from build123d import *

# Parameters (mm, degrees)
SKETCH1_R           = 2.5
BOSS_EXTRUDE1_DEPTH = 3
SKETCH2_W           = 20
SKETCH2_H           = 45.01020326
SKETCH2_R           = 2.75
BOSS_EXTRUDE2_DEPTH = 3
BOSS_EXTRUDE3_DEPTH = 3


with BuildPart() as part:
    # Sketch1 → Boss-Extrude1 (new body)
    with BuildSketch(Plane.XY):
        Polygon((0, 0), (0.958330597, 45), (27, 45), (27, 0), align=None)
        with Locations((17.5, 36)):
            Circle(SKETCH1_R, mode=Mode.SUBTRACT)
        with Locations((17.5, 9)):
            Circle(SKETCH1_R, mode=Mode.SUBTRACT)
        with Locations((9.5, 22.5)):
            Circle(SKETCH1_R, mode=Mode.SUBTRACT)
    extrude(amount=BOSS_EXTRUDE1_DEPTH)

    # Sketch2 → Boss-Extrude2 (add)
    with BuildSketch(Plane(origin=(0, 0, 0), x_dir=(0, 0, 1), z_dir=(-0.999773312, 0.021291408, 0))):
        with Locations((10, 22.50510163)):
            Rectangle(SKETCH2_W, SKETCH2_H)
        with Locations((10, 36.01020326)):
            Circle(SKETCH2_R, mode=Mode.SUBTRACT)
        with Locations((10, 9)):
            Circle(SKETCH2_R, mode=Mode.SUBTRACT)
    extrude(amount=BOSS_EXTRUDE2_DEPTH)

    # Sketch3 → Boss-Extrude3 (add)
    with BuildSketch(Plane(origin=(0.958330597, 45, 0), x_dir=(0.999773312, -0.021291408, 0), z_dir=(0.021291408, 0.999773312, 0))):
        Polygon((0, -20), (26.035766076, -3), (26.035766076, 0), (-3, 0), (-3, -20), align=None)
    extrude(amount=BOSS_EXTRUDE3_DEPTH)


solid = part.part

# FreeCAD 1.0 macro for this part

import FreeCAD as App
import Part
import Sketcher
from FreeCAD import Vector
Q = App.Units.Quantity

doc = App.newDocument("Part")
body = doc.addObject("PartDesign::Body", "Body")

sketch1 = doc.addObject("Sketcher::SketchObject", "Sketch")
body.addObject(sketch1)
sketch1.AttachmentSupport = (doc.XY_Plane, [""])
sketch1.MapMode = "FlatFace"
sketch1.addGeometry(Part.LineSegment(Vector(0.958331, 45, 0), Vector(0, 0, 0)), False)
sketch1.addGeometry(Part.LineSegment(Vector(0, 0, 0), Vector(27, 0, 0)), False)
sketch1.addGeometry(Part.LineSegment(Vector(27, 0, 0), Vector(27, 45, 0)), False)
sketch1.addGeometry(Part.LineSegment(Vector(27, 45, 0), Vector(0.958331, 45, 0)), False)
sketch1.addGeometry(Part.Circle(Vector(17.5, 9, 0), Vector(0, 0, 1), 2.5), False)
sketch1.addGeometry(Part.Circle(Vector(17.5, 36, 0), Vector(0, 0, 1), 2.5), False)
sketch1.addGeometry(Part.Circle(Vector(9.5, 22.5, 0), Vector(0, 0, 1), 2.5), False)
sketch1.addConstraint(Sketcher.Constraint("Coincident", 0, 2, 1, 1))
sketch1.addConstraint(Sketcher.Constraint("Coincident", 1, 2, 2, 1))
sketch1.addConstraint(Sketcher.Constraint("Coincident", 2, 2, 3, 1))
sketch1.addConstraint(Sketcher.Constraint("Coincident", 3, 2, 0, 1))
sketch1.addConstraint(Sketcher.Constraint("Horizontal", 1))
sketch1.addConstraint(Sketcher.Constraint("Vertical", 2))
sketch1.addConstraint(Sketcher.Constraint("Horizontal", 3))
sketch1.addConstraint(Sketcher.Constraint("Coincident", 0, 2, -1, 1))
sketch1.addConstraint(Sketcher.Constraint("Equal", 4, 5))
sketch1.addConstraint(Sketcher.Constraint("Equal", 5, 6))
sketch1.addConstraint(Sketcher.Constraint("Vertical", 4, 3, 5, 3))
sketch1.addConstraint(Sketcher.Constraint("Diameter", 4, 5.0))
sketch1.addConstraint(Sketcher.Constraint("DistanceX", 1, 1, 1, 2, 27.0))
sketch1.addConstraint(Sketcher.Constraint("DistanceY", 2, 1, 2, 2, 45.0))
sketch1.addConstraint(Sketcher.Constraint("DistanceY", -1, 1, 4, 3, 9.0))
sketch1.addConstraint(Sketcher.Constraint("DistanceY", -1, 1, 5, 3, 36.0))
sketch1.addConstraint(Sketcher.Constraint("DistanceX", 6, 3, 4, 3, 8.0))
sketch1.addConstraint(Sketcher.Constraint("DistanceX", -1, 1, 4, 3, 17.5))
sketch1.addConstraint(Sketcher.Constraint("DistanceY", -1, 1, 6, 3, 22.5))
sketch1.addConstraint(Sketcher.Constraint("Angle", 0, Q("-91.22 deg")))
pad1 = doc.addObject("PartDesign::Pad", "Pad")
body.addObject(pad1)
pad1.Profile = sketch1
pad1.Length = 3

sketch2 = doc.addObject("Sketcher::SketchObject", "Sketch001")
body.addObject(sketch2)
sketch2.Placement = App.Placement(Vector(0, 0, 0), App.Rotation(Vector(0, 0, 1), Vector(0.021291408, 0.999773312, 0), Vector(-0.999773312, 0.021291408, 0), "ZXY"))
sketch2.addGeometry(Part.LineSegment(Vector(0, 45.010203, 0), Vector(0, 0, 0)), False)
sketch2.addGeometry(Part.LineSegment(Vector(0, 0, 0), Vector(20, 0, 0)), False)
sketch2.addGeometry(Part.LineSegment(Vector(20, 0, 0), Vector(20, 45.010203, 0)), False)
sketch2.addGeometry(Part.LineSegment(Vector(20, 45.010203, 0), Vector(0, 45.010203, 0)), False)
sketch2.addGeometry(Part.Circle(Vector(10, 9, 0), Vector(0, 0, 1), 2.75), False)
sketch2.addGeometry(Part.Circle(Vector(10, 36.010203, 0), Vector(0, 0, 1), 2.75), False)
sketch2.addConstraint(Sketcher.Constraint("Coincident", 0, 2, 1, 1))
sketch2.addConstraint(Sketcher.Constraint("Coincident", 1, 2, 2, 1))
sketch2.addConstraint(Sketcher.Constraint("Coincident", 2, 2, 3, 1))
sketch2.addConstraint(Sketcher.Constraint("Coincident", 3, 2, 0, 1))
sketch2.addConstraint(Sketcher.Constraint("Vertical", 0))
sketch2.addConstraint(Sketcher.Constraint("Horizontal", 1))
sketch2.addConstraint(Sketcher.Constraint("Vertical", 2))
sketch2.addConstraint(Sketcher.Constraint("Horizontal", 3))
sketch2.addConstraint(Sketcher.Constraint("Coincident", 0, 2, -1, 1))
sketch2.addConstraint(Sketcher.Constraint("Equal", 4, 5))
sketch2.addConstraint(Sketcher.Constraint("Vertical", 4, 3, 5, 3))
sketch2.addConstraint(Sketcher.Constraint("Diameter", 4, 5.5))
sketch2.addConstraint(Sketcher.Constraint("DistanceX", 1, 1, 1, 2, 20.0))
sketch2.addConstraint(Sketcher.Constraint("DistanceX", -1, 1, 4, 3, 10.0))
sketch2.addConstraint(Sketcher.Constraint("DistanceY", -1, 1, 4, 3, 9.0))
sketch2.addConstraint(Sketcher.Constraint("DistanceY", 5, 3, 2, 2, 9.0))
sketch2.addConstraint(Sketcher.Constraint("DistanceY", 0, 2, 0, 1, 45.010203))
pad2 = doc.addObject("PartDesign::Pad", "Pad001")
body.addObject(pad2)
pad2.Profile = sketch2
pad2.Length = 3

sketch3 = doc.addObject("Sketcher::SketchObject", "Sketch002")
body.addObject(sketch3)
sketch3.Placement = App.Placement(Vector(0.958331, 45, 0), App.Rotation(Vector(0.999773312, -0.021291408, 0), Vector(0, 0, -0.999999999), Vector(0.021291408, 0.999773312, 0), "ZXY"))
sketch3.addGeometry(Part.LineSegment(Vector(0, -20, 0), Vector(26.035766, -3, 0)), False)
sketch3.addGeometry(Part.LineSegment(Vector(26.035766, -3, 0), Vector(26.035766, 0, 0)), False)
sketch3.addGeometry(Part.LineSegment(Vector(26.035766, 0, 0), Vector(-3, 0, 0)), False)
sketch3.addGeometry(Part.LineSegment(Vector(-3, 0, 0), Vector(-3, -20, 0)), False)
sketch3.addGeometry(Part.LineSegment(Vector(-3, -20, 0), Vector(0, -20, 0)), False)
sketch3.addConstraint(Sketcher.Constraint("Coincident", 0, 2, 1, 1))
sketch3.addConstraint(Sketcher.Constraint("Coincident", 1, 2, 2, 1))
sketch3.addConstraint(Sketcher.Constraint("Coincident", 2, 2, 3, 1))
sketch3.addConstraint(Sketcher.Constraint("Coincident", 3, 2, 4, 1))
sketch3.addConstraint(Sketcher.Constraint("Coincident", 4, 2, 0, 1))
sketch3.addConstraint(Sketcher.Constraint("Vertical", 1))
sketch3.addConstraint(Sketcher.Constraint("Horizontal", 2))
sketch3.addConstraint(Sketcher.Constraint("Vertical", 3))
sketch3.addConstraint(Sketcher.Constraint("Horizontal", 4))
sketch3.addConstraint(Sketcher.Constraint("PointOnObject", 1, 2, -1))
sketch3.addConstraint(Sketcher.Constraint("PointOnObject", 4, 2, -2))
sketch3.addConstraint(Sketcher.Constraint("Equal", 4, 1))
sketch3.addConstraint(Sketcher.Constraint("DistanceX", 4, 1, 4, 2, 3.0))
sketch3.addConstraint(Sketcher.Constraint("DistanceY", 3, 2, 3, 1, 20.0))
sketch3.addConstraint(Sketcher.Constraint("Distance", 0, 31.09439))
pad3 = doc.addObject("PartDesign::Pad", "Pad002")
body.addObject(pad3)
pad3.Profile = sketch3
pad3.Length = 3

doc.recompute()
